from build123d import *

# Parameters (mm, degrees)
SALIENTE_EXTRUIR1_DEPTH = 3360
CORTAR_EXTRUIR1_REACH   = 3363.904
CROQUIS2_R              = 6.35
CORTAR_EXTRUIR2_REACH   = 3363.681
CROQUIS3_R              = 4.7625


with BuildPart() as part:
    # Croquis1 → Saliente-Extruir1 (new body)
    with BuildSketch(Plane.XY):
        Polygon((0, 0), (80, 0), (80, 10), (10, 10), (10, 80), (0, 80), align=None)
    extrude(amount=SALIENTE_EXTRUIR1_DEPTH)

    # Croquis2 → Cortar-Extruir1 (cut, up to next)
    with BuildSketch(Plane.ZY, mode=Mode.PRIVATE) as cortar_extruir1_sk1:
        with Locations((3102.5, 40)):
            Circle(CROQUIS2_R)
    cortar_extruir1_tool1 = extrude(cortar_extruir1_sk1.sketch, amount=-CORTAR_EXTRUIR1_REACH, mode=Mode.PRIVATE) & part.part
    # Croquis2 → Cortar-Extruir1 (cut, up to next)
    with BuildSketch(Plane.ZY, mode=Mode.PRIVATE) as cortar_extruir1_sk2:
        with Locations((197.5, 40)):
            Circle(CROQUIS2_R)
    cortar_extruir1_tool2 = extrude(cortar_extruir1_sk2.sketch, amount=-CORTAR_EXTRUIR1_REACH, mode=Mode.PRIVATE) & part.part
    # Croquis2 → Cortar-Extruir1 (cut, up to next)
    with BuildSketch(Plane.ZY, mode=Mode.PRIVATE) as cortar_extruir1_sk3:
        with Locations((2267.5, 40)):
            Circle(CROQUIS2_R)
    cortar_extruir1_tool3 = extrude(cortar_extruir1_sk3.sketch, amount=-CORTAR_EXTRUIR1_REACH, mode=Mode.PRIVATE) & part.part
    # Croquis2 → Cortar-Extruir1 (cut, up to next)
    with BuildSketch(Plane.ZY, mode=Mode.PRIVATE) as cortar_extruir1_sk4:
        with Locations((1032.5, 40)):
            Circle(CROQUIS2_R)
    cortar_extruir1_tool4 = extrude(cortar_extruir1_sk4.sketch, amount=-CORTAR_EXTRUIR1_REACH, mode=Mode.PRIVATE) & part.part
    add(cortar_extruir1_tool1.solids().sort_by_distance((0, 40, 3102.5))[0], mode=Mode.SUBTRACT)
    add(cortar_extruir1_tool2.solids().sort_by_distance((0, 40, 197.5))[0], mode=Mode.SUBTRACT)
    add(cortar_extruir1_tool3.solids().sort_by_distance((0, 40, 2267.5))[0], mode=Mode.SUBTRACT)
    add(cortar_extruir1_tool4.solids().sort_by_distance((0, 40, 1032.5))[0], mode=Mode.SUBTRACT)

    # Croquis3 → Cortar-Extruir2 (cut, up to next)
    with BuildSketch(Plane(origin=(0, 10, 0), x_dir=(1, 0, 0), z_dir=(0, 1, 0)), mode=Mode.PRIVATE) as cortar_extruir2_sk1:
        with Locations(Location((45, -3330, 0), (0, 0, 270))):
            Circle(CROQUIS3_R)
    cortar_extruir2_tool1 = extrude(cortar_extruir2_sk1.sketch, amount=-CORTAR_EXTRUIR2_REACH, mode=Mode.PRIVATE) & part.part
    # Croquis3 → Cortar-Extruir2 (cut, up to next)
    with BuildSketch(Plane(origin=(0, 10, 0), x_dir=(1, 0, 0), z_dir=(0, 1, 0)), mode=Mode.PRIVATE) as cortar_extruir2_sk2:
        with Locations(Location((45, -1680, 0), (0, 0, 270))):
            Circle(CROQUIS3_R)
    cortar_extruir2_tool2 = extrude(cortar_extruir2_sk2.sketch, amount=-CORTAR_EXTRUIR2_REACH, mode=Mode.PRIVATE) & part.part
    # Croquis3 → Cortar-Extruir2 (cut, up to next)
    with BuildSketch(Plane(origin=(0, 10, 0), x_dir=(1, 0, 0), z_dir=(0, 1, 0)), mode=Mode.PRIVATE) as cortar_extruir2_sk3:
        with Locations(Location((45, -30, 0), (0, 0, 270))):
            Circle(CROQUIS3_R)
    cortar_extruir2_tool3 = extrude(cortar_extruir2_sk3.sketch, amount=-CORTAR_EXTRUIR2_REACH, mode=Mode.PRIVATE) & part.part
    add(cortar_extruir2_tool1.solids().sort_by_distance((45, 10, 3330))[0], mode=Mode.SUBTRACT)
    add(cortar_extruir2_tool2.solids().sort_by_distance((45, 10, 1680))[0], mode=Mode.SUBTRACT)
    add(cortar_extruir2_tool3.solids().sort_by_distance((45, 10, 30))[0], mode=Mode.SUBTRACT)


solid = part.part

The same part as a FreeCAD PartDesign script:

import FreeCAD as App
import Part
import Sketcher
from FreeCAD import Vector
Q = App.Units.Quantity

doc = App.newDocument("Part")
params = doc.addObject("Spreadsheet::Sheet", "Params")
for row, (alias, value) in enumerate([
    ("sketch1_width", "80 mm"),
    ("sketch1_width2", "70 mm"),
    ("pad1_length", "3360 mm"),
    ("sketch2_diameter", "12.7 mm"),
    ("sketch3_diameter", "12.7 mm"),
    ("sketch4_diameter", "12.7 mm"),
    ("sketch5_diameter", "12.7 mm"),
], start=1):
    params.set(f"A{row}", alias)
    params.set(f"B{row}", "=" + value)
    params.setAlias(f"B{row}", alias)

body = doc.addObject("PartDesign::Body", "Body")

# Sketch on XY plane
sketch1 = body.newObject("Sketcher::SketchObject", "Sketch")
sketch1.AttachmentSupport = (doc.getObject("XY_Plane"), [""])
sketch1.MapMode = "FlatFace"
sketch1.addGeometry(Part.LineSegment(Vector(0, 0, 0), Vector(80, 0, 0)), False)
sketch1.addGeometry(Part.LineSegment(Vector(80, 0, 0), Vector(80, 10, 0)), False)
sketch1.addGeometry(Part.LineSegment(Vector(80, 10, 0), Vector(10, 10, 0)), False)
sketch1.addGeometry(Part.LineSegment(Vector(10, 10, 0), Vector(10, 80, 0)), False)
sketch1.addGeometry(Part.LineSegment(Vector(10, 80, 0), Vector(0, 80, 0)), False)
sketch1.addGeometry(Part.LineSegment(Vector(0, 80, 0), Vector(0, 0, 0)), False)
sketch1.addConstraint(Sketcher.Constraint("Coincident", 0, 2, 1, 1))
sketch1.addConstraint(Sketcher.Constraint("Coincident", 1, 2, 2, 1))
sketch1.addConstraint(Sketcher.Constraint("Coincident", 2, 2, 3, 1))
sketch1.addConstraint(Sketcher.Constraint("Coincident", 3, 2, 4, 1))
sketch1.addConstraint(Sketcher.Constraint("Coincident", 4, 2, 5, 1))
sketch1.addConstraint(Sketcher.Constraint("Coincident", 5, 2, 0, 1))
sketch1.addConstraint(Sketcher.Constraint("Horizontal", 0))
sketch1.addConstraint(Sketcher.Constraint("Vertical", 1))
sketch1.addConstraint(Sketcher.Constraint("Horizontal", 2))
sketch1.addConstraint(Sketcher.Constraint("Vertical", 3))
sketch1.addConstraint(Sketcher.Constraint("Horizontal", 4))
sketch1.addConstraint(Sketcher.Constraint("Vertical", 5))
sketch1.addConstraint(Sketcher.Constraint("Coincident", 5, 2, -1, 1))
sketch1.addConstraint(Sketcher.Constraint("Equal", 4, 1))
sketch1.addConstraint(Sketcher.Constraint("Equal", 2, 3))
sketch1.addConstraint(Sketcher.Constraint("DistanceX", 0, 1, 0, 2, Q("80 mm")))
sketch1.addConstraint(Sketcher.Constraint("DistanceX", 2, 2, 2, 1, Q("70 mm")))
sketch1.setExpression("Constraints[15]", "Params.sketch1_width")
sketch1.setExpression("Constraints[16]", "Params.sketch1_width2")
pad1 = body.newObject("PartDesign::Pad", "Pad")
pad1.Profile = sketch1
pad1.setExpression("Length", "Params.pad1_length")

# Sketch on YZ plane
sketch2 = body.newObject("Sketcher::SketchObject", "Sketch001")
sketch2.AttachmentSupport = (doc.getObject("YZ_Plane"), [""])
sketch2.MapMode = "FlatFace"
sketch2.addGeometry(Part.Circle(Vector(40, 3102, 0), Vector(0, 0, 1), 6), False)
sketch2.addConstraint(Sketcher.Constraint("Diameter", 0, Q("12.7 mm")))
sketch2.addConstraint(Sketcher.Constraint("DistanceX", -1, 1, 0, 3, Q("40 mm")))
sketch2.addConstraint(Sketcher.Constraint("DistanceY", -1, 1, 0, 3, Q("3102.5 mm")))
sketch2.setExpression("Constraints[0]", "Params.sketch2_diameter")
pocket1 = body.newObject("PartDesign::Pocket", "Pocket")
pocket1.Profile = sketch2
pocket1.Type = "UpToFirst"
pocket1.Reversed = True

# Sketch on YZ plane
sketch3 = body.newObject("Sketcher::SketchObject", "Sketch002")
sketch3.AttachmentSupport = (doc.getObject("YZ_Plane"), [""])
sketch3.MapMode = "FlatFace"
sketch3.addGeometry(Part.Circle(Vector(40, 198, 0), Vector(0, 0, 1), 6), False)
sketch3.addConstraint(Sketcher.Constraint("Diameter", 0, Q("12.7 mm")))
sketch3.addConstraint(Sketcher.Constraint("DistanceX", -1, 1, 0, 3, Q("40 mm")))
sketch3.addConstraint(Sketcher.Constraint("DistanceY", -1, 1, 0, 3, Q("197.5 mm")))
sketch3.setExpression("Constraints[0]", "Params.sketch3_diameter")
pocket2 = body.newObject("PartDesign::Pocket", "Pocket001")
pocket2.Profile = sketch3
pocket2.Type = "UpToFirst"
pocket2.Reversed = True

# Sketch on YZ plane
sketch4 = body.newObject("Sketcher::SketchObject", "Sketch003")
sketch4.AttachmentSupport = (doc.getObject("YZ_Plane"), [""])
sketch4.MapMode = "FlatFace"
sketch4.addGeometry(Part.Circle(Vector(40, 2268, 0), Vector(0, 0, 1), 6), False)
sketch4.addConstraint(Sketcher.Constraint("Diameter", 0, Q("12.7 mm")))
sketch4.addConstraint(Sketcher.Constraint("DistanceX", -1, 1, 0, 3, Q("40 mm")))
sketch4.addConstraint(Sketcher.Constraint("DistanceY", -1, 1, 0, 3, Q("2267.5 mm")))
sketch4.setExpression("Constraints[0]", "Params.sketch4_diameter")
pocket3 = body.newObject("PartDesign::Pocket", "Pocket002")
pocket3.Profile = sketch4
pocket3.Type = "UpToFirst"
pocket3.Reversed = True

# Sketch on YZ plane
sketch5 = body.newObject("Sketcher::SketchObject", "Sketch004")
sketch5.AttachmentSupport = (doc.getObject("YZ_Plane"), [""])
sketch5.MapMode = "FlatFace"
sketch5.addGeometry(Part.Circle(Vector(40, 1032, 0), Vector(0, 0, 1), 6), False)
sketch5.addConstraint(Sketcher.Constraint("Diameter", 0, Q("12.7 mm")))
sketch5.addConstraint(Sketcher.Constraint("DistanceX", -1, 1, 0, 3, Q("40 mm")))
sketch5.addConstraint(Sketcher.Constraint("DistanceY", -1, 1, 0, 3, Q("1032.5 mm")))
sketch5.setExpression("Constraints[0]", "Params.sketch5_diameter")
pocket4 = body.newObject("PartDesign::Pocket", "Pocket003")
pocket4.Profile = sketch5
pocket4.Type = "UpToFirst"
pocket4.Reversed = True

# Sketch on XZ plane
sketch6 = body.newObject("Sketcher::SketchObject", "Sketch005")
sketch6.AttachmentSupport = (doc.getObject("XZ_Plane"), [""])
sketch6.MapMode = "FlatFace"
sketch6.AttachmentOffset = App.Placement(Vector(0, 0, -10), App.Rotation())
sketch6.addGeometry(Part.Circle(Vector(45, 3330, 0), Vector(0, 0, 1), 4.8), False)
sketch6.addConstraint(Sketcher.Constraint("Diameter", 0, Q("9.525 mm")))
sketch6.addConstraint(Sketcher.Constraint("DistanceX", -1, 1, 0, 3, Q("45 mm")))
sketch6.addConstraint(Sketcher.Constraint("DistanceY", -1, 1, 0, 3, Q("3330 mm")))
pocket5 = body.newObject("PartDesign::Pocket", "Pocket004")
pocket5.Profile = sketch6
pocket5.Type = "UpToFirst"
pocket5.Reversed = True

# Sketch on XZ plane
sketch7 = body.newObject("Sketcher::SketchObject", "Sketch006")
sketch7.AttachmentSupport = (doc.getObject("XZ_Plane"), [""])
sketch7.MapMode = "FlatFace"
sketch7.AttachmentOffset = App.Placement(Vector(0, 0, -10), App.Rotation())
sketch7.addGeometry(Part.Circle(Vector(45, 1680, 0), Vector(0, 0, 1), 4.8), False)
sketch7.addConstraint(Sketcher.Constraint("Diameter", 0, Q("9.525 mm")))
sketch7.addConstraint(Sketcher.Constraint("DistanceX", -1, 1, 0, 3, Q("45 mm")))
sketch7.addConstraint(Sketcher.Constraint("DistanceY", -1, 1, 0, 3, Q("1680 mm")))
pocket6 = body.newObject("PartDesign::Pocket", "Pocket005")
pocket6.Profile = sketch7
pocket6.Type = "UpToFirst"
pocket6.Reversed = True

# Sketch on XZ plane
sketch8 = body.newObject("Sketcher::SketchObject", "Sketch007")
sketch8.AttachmentSupport = (doc.getObject("XZ_Plane"), [""])
sketch8.MapMode = "FlatFace"
sketch8.AttachmentOffset = App.Placement(Vector(0, 0, -10), App.Rotation())
sketch8.addGeometry(Part.Circle(Vector(45, 30, 0), Vector(0, 0, 1), 4.8), False)
sketch8.addConstraint(Sketcher.Constraint("Diameter", 0, Q("9.525 mm")))
sketch8.addConstraint(Sketcher.Constraint("DistanceX", -1, 1, 0, 3, Q("45 mm")))
sketch8.addConstraint(Sketcher.Constraint("DistanceY", -1, 1, 0, 3, Q("30 mm")))
pocket7 = body.newObject("PartDesign::Pocket", "Pocket006")
pocket7.Profile = sketch8
pocket7.Type = "UpToFirst"
pocket7.Reversed = True

doc.recompute()
